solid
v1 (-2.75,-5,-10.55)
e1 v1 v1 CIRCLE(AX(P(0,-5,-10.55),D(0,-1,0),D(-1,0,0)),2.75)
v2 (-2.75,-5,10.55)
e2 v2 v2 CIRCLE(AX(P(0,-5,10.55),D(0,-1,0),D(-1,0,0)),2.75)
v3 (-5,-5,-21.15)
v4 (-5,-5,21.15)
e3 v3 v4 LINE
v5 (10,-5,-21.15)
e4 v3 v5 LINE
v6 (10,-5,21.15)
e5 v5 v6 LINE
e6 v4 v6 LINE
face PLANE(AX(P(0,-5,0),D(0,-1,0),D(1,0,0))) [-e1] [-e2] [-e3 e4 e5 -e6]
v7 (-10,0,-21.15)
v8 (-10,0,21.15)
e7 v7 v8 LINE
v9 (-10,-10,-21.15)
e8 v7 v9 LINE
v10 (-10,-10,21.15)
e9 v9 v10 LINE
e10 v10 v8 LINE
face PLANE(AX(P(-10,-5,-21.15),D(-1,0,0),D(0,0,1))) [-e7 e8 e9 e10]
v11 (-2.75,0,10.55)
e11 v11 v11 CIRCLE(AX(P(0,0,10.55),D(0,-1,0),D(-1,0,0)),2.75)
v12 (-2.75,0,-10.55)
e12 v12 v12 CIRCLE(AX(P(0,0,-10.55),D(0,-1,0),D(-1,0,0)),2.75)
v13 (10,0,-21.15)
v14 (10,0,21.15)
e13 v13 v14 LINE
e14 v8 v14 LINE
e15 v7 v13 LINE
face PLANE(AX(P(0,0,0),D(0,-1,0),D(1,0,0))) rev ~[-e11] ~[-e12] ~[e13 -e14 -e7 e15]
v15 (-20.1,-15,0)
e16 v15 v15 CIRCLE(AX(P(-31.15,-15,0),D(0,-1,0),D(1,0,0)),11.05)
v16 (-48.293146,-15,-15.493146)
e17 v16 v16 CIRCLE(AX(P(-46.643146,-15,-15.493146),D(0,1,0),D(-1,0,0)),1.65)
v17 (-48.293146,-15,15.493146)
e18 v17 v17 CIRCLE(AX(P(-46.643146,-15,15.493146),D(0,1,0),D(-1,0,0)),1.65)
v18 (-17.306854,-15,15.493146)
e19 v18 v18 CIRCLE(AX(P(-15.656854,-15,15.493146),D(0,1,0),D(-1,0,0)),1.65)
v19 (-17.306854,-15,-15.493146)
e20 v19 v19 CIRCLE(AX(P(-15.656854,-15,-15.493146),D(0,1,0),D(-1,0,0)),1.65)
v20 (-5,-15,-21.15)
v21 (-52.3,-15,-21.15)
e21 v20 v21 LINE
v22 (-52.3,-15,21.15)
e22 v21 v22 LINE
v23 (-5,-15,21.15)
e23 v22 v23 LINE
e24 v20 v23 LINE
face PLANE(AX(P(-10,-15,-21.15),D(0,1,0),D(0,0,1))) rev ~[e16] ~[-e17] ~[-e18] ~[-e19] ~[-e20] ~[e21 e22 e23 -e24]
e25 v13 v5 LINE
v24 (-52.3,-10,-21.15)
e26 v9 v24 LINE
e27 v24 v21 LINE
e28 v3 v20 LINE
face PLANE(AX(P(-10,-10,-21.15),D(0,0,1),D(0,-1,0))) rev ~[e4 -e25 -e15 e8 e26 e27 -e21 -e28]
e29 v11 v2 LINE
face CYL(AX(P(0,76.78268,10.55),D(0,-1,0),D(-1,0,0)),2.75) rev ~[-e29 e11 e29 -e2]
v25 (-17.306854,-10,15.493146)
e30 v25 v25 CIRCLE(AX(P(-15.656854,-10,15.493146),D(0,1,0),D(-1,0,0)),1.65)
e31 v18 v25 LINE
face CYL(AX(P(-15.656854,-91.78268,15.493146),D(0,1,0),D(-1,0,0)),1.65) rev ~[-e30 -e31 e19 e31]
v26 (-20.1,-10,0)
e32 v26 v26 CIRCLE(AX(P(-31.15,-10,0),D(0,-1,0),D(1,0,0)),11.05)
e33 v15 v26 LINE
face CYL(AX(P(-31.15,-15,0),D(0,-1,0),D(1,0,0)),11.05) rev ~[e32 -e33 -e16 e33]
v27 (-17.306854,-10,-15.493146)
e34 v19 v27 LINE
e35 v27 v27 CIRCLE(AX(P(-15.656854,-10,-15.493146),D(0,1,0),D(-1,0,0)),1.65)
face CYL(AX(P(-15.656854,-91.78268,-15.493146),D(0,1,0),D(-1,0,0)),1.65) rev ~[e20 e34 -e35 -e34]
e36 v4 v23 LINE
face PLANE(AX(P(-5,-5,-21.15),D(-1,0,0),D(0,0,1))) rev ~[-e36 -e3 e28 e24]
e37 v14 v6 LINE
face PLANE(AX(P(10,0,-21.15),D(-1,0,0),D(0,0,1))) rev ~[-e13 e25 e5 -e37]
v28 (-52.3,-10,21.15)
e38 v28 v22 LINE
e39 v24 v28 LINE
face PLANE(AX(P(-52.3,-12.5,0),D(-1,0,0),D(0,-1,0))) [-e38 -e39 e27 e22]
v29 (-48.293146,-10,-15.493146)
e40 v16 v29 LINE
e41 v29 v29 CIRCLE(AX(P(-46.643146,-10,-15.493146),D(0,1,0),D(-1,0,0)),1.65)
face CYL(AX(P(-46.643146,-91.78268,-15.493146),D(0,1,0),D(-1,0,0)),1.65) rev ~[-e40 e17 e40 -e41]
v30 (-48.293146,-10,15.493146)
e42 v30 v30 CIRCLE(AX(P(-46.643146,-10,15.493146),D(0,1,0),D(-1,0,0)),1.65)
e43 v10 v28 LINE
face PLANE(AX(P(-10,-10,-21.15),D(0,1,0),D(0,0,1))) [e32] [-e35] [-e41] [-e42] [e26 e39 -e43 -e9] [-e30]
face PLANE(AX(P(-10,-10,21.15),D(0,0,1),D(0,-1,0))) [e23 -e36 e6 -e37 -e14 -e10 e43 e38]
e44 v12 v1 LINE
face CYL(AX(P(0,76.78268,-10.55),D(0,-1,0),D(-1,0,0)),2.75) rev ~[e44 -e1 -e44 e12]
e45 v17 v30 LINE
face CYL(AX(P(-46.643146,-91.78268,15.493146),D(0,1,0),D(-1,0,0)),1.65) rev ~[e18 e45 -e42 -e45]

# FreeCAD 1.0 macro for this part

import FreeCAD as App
import Part
import Sketcher
from FreeCAD import Vector

doc = App.newDocument("Part")
body = doc.addObject("PartDesign::Body", "Body")

sketch1 = doc.addObject("Sketcher::SketchObject", "Sketch")
body.addObject(sketch1)
sketch1.AttachmentSupport = (doc.XZ_Plane, [""])
sketch1.MapMode = "FlatFace"
sketch1.addGeometry(Part.LineSegment(Vector(-10, 21.15, 0), Vector(-10, -21.15, 0)), False)
sketch1.addGeometry(Part.LineSegment(Vector(-10, -21.15, 0), Vector(10, -21.15, 0)), False)
sketch1.addGeometry(Part.LineSegment(Vector(10, -21.15, 0), Vector(10, 21.15, 0)), False)
sketch1.addGeometry(Part.LineSegment(Vector(10, 21.15, 0), Vector(-10, 21.15, 0)), False)
sketch1.addConstraint(Sketcher.Constraint("Coincident", 0, 2, 1, 1))
sketch1.addConstraint(Sketcher.Constraint("Coincident", 1, 2, 2, 1))
sketch1.addConstraint(Sketcher.Constraint("Coincident", 2, 2, 3, 1))
sketch1.addConstraint(Sketcher.Constraint("Coincident", 3, 2, 0, 1))
sketch1.addConstraint(Sketcher.Constraint("Vertical", 0))
sketch1.addConstraint(Sketcher.Constraint("Horizontal", 1))
sketch1.addConstraint(Sketcher.Constraint("Vertical", 2))
sketch1.addConstraint(Sketcher.Constraint("Horizontal", 3))
sketch1.addConstraint(Sketcher.Constraint("Symmetric", 0, 2, 2, 2, -1, 1))
sketch1.addConstraint(Sketcher.Constraint("DistanceX", 1, 1, 1, 2, 20.0))
sketch1.addConstraint(Sketcher.Constraint("DistanceY", 0, 2, 0, 1, 42.3))
pad1 = doc.addObject("PartDesign::Pad", "Pad")
body.addObject(pad1)
pad1.Profile = sketch1
pad1.Length = 5

sketch2 = doc.addObject("Sketcher::SketchObject", "Sketch001")
body.addObject(sketch2)
sketch2.AttachmentSupport = (doc.XZ_Plane, [""])
sketch2.MapMode = "FlatFace"
sketch2.AttachmentOffset = App.Placement(Vector(0, 0, 5), App.Rotation())
sketch2.addGeometry(Part.LineSegment(Vector(-10, 21.15, 0), Vector(-10, -21.15, 0)), False)
sketch2.addGeometry(Part.LineSegment(Vector(-10, -21.15, 0), Vector(-5, -21.15, 0)), False)
sketch2.addGeometry(Part.LineSegment(Vector(-5, -21.15, 0), Vector(-5, 21.15, 0)), False)
sketch2.addGeometry(Part.LineSegment(Vector(-5, 21.15, 0), Vector(-10, 21.15, 0)), False)
sketch2.addConstraint(Sketcher.Constraint("Coincident", 0, 2, 1, 1))
sketch2.addConstraint(Sketcher.Constraint("Coincident", 1, 2, 2, 1))
sketch2.addConstraint(Sketcher.Constraint("Coincident", 2, 2, 3, 1))
sketch2.addConstraint(Sketcher.Constraint("Coincident", 3, 2, 0, 1))
sketch2.addConstraint(Sketcher.Constraint("Vertical", 0))
sketch2.addConstraint(Sketcher.Constraint("Horizontal", 1))
sketch2.addConstraint(Sketcher.Constraint("Vertical", 2))
sketch2.addConstraint(Sketcher.Constraint("Horizontal", 3))
sketch2.addConstraint(Sketcher.Constraint("DistanceX", 1, 1, 1, 2, 5.0))
sketch2.addConstraint(Sketcher.Constraint("DistanceY", 0, 2, 0, 1, 42.3))
sketch2.addConstraint(Sketcher.Constraint("DistanceX", 0, 2, -1, 1, 10.0))
sketch2.addConstraint(Sketcher.Constraint("DistanceY", 0, 2, -1, 1, 21.15))
pad2 = doc.addObject("PartDesign::Pad", "Pad001")
body.addObject(pad2)
pad2.Profile = sketch2
pad2.Length = 10

sketch3 = doc.addObject("Sketcher::SketchObject", "Sketch002")
body.addObject(sketch3)
sketch3.AttachmentSupport = (doc.YZ_Plane, [""])
sketch3.MapMode = "FlatFace"
sketch3.AttachmentOffset = App.Placement(Vector(0, 0, -10), App.Rotation())
sketch3.addGeometry(Part.LineSegment(Vector(-10, 21.15, 0), Vector(-10, -21.15, 0)), False)
sketch3.addGeometry(Part.LineSegment(Vector(-10, -21.15, 0), Vector(-15, -21.15, 0)), False)
sketch3.addGeometry(Part.LineSegment(Vector(-15, -21.15, 0), Vector(-15, 21.15, 0)), False)
sketch3.addGeometry(Part.LineSegment(Vector(-15, 21.15, 0), Vector(-10, 21.15, 0)), False)
sketch3.addConstraint(Sketcher.Constraint("Coincident", 0, 2, 1, 1))
sketch3.addConstraint(Sketcher.Constraint("Coincident", 1, 2, 2, 1))
sketch3.addConstraint(Sketcher.Constraint("Coincident", 2, 2, 3, 1))
sketch3.addConstraint(Sketcher.Constraint("Coincident", 3, 2, 0, 1))
sketch3.addConstraint(Sketcher.Constraint("Vertical", 0))
sketch3.addConstraint(Sketcher.Constraint("Horizontal", 1))
sketch3.addConstraint(Sketcher.Constraint("Vertical", 2))
sketch3.addConstraint(Sketcher.Constraint("Horizontal", 3))
sketch3.addConstraint(Sketcher.Constraint("DistanceX", 1, 2, 1, 1, 5.0))
sketch3.addConstraint(Sketcher.Constraint("DistanceY", 0, 2, 0, 1, 42.3))
sketch3.addConstraint(Sketcher.Constraint("DistanceX", 0, 2, -1, 1, 10.0))
sketch3.addConstraint(Sketcher.Constraint("DistanceY", 0, 2, -1, 1, 21.15))
pad3 = doc.addObject("PartDesign::Pad", "Pad002")
body.addObject(pad3)
pad3.Profile = sketch3
pad3.Length = 42.3
pad3.Reversed = True

sketch4 = doc.addObject("Sketcher::SketchObject", "Sketch003")
body.addObject(sketch4)
sketch4.AttachmentSupport = (doc.XZ_Plane, [""])
sketch4.MapMode = "FlatFace"
sketch4.AttachmentOffset = App.Placement(Vector(0, 0, 15), App.Rotation())
sketch4.addGeometry(Part.Circle(Vector(-31.15, 0, 0), Vector(0, 0, 1), 11.05), False)
sketch4.addConstraint(Sketcher.Constraint("PointOnObject", 0, 3, -1))
sketch4.addConstraint(Sketcher.Constraint("Diameter", 0, 22.1))
sketch4.addConstraint(Sketcher.Constraint("DistanceX", 0, 3, -1, 1, 31.15))
pocket1 = doc.addObject("PartDesign::Pocket", "Pocket")
body.addObject(pocket1)
pocket1.Profile = sketch4
pocket1.Length = 5.1

sketch5 = doc.addObject("Sketcher::SketchObject", "Sketch004")
body.addObject(sketch5)
sketch5.AttachmentSupport = (doc.XZ_Plane, [""])
sketch5.MapMode = "FlatFace"
sketch5.AttachmentOffset = App.Placement(Vector(0, 0, 15), App.Rotation())
sketch5.addGeometry(Part.Circle(Vector(-46.643146, 15.493146, 0), Vector(0, 0, 1), 1.65), False)
sketch5.addGeometry(Part.Circle(Vector(-15.656854, 15.493146, 0), Vector(0, 0, 1), 1.65), False)
sketch5.addGeometry(Part.Circle(Vector(-15.656854, -15.493146, 0), Vector(0, 0, 1), 1.65), False)
sketch5.addGeometry(Part.Circle(Vector(-46.643146, -15.493146, 0), Vector(0, 0, 1), 1.65), False)
sketch5.addConstraint(Sketcher.Constraint("Equal", 0, 1))
sketch5.addConstraint(Sketcher.Constraint("Equal", 1, 2))
sketch5.addConstraint(Sketcher.Constraint("Equal", 2, 3))
sketch5.addConstraint(Sketcher.Constraint("Symmetric", 1, 3, 2, 3, -1))
sketch5.addConstraint(Sketcher.Constraint("Symmetric", 0, 3, 3, 3, -1))
sketch5.addConstraint(Sketcher.Constraint("Horizontal", 0, 3, 1, 3))
sketch5.addConstraint(Sketcher.Constraint("Diameter", 0, 3.3))
sketch5.addConstraint(Sketcher.Constraint("DistanceX", 0, 3, 1, 3, 30.986292))
sketch5.addConstraint(Sketcher.Constraint("DistanceY", 2, 3, 1, 3, 30.986292))
sketch5.addConstraint(Sketcher.Constraint("DistanceX", 0, 3, -1, 1, 46.643146))
doc.recompute()
hole = doc.addObject("PartDesign::Hole", "Hole")
body.addObject(hole)
hole.Profile = sketch5
hole.ThreadType = "None"
hole.Diameter = 3.3
hole.DepthType = "ThroughAll"

sketch6 = doc.addObject("Sketcher::SketchObject", "Sketch005")
body.addObject(sketch6)
sketch6.AttachmentSupport = (doc.XZ_Plane, [""])
sketch6.MapMode = "FlatFace"
sketch6.addGeometry(Part.Circle(Vector(0, 10.55, 0), Vector(0, 0, 1), 2.75), False)
sketch6.addGeometry(Part.Circle(Vector(0, -10.55, 0), Vector(0, 0, 1), 2.75), False)
sketch6.addConstraint(Sketcher.Constraint("Equal", 0, 1))
sketch6.addConstraint(Sketcher.Constraint("Symmetric", 0, 3, 1, 3, -1, 1))
sketch6.addConstraint(Sketcher.Constraint("PointOnObject", 0, 3, -2))
sketch6.addConstraint(Sketcher.Constraint("Diameter", 0, 5.5))
sketch6.addConstraint(Sketcher.Constraint("DistanceY", 1, 3, 0, 3, 21.1))
doc.recompute()
hole2 = doc.addObject("PartDesign::Hole", "Hole001")
body.addObject(hole2)
hole2.Profile = sketch6
hole2.ThreadType = "None"
hole2.Diameter = 5.5
hole2.DepthType = "ThroughAll"
hole2.Reversed = True

doc.recompute()
